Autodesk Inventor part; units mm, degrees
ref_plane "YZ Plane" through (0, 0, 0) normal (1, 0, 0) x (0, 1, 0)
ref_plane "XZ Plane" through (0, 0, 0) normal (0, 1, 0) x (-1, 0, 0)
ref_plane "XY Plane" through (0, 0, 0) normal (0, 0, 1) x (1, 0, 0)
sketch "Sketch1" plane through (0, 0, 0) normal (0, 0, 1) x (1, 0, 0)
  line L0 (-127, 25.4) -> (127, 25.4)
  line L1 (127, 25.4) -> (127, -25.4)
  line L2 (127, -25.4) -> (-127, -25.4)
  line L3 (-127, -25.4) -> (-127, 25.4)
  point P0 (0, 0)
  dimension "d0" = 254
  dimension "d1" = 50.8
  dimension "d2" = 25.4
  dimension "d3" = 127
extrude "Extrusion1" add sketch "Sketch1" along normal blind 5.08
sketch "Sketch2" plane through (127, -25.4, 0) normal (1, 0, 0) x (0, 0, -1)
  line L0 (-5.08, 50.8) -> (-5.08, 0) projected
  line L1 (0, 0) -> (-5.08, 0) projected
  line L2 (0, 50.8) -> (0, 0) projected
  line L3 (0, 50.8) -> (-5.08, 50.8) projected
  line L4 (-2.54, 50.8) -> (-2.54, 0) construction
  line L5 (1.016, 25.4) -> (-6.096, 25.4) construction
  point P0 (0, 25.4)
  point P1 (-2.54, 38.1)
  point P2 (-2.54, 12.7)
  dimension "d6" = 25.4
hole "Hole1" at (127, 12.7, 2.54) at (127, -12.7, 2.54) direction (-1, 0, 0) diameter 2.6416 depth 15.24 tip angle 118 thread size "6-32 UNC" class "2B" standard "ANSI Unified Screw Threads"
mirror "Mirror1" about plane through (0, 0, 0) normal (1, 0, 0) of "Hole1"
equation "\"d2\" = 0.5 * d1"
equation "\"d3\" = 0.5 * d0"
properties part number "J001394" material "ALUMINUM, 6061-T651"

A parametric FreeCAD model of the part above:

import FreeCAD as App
import Part
import Sketcher

V = App.Vector
Q = App.Units.Quantity

doc = App.newDocument("Part")
body = doc.addObject("PartDesign::Body", "Body")

sketch1 = doc.addObject("Sketcher::SketchObject", "Sketch")
body.addObject(sketch1)
sketch1.AttachmentSupport = (doc.XY_Plane, [""])
sketch1.MapMode = "FlatFace"
sketch1.addGeometry([
    Part.LineSegment(V(127, 25, 0), V(-127, 25, 0)),
    Part.LineSegment(V(-127, 25, 0), V(-127, -25, 0)),
    Part.LineSegment(V(-127, -25, 0), V(127, -25, 0)),
    Part.LineSegment(V(127, -25, 0), V(127, 25, 0)),
], False)
sketch1.addConstraint([
    Sketcher.Constraint("Coincident", 0, 2, 1, 1),
    Sketcher.Constraint("Coincident", 1, 2, 2, 1),
    Sketcher.Constraint("Coincident", 2, 2, 3, 1),
    Sketcher.Constraint("Coincident", 3, 2, 0, 1),
    Sketcher.Constraint("Horizontal", 0),
    Sketcher.Constraint("Vertical", 1),
    Sketcher.Constraint("Horizontal", 2),
    Sketcher.Constraint("Vertical", 3),
    Sketcher.Constraint("Symmetric", 0, 2, 2, 2, -1, 1),
    Sketcher.Constraint("DistanceX", 0, 2, 0, 1, Q("10 in")),
    Sketcher.Constraint("DistanceY", 1, 2, 1, 1, Q("2 in")),
])
pad1 = doc.addObject("PartDesign::Pad", "Pad")
body.addObject(pad1)
pad1.Profile = sketch1
pad1.Length = Q("0.2 in")

sketch2 = doc.addObject("Sketcher::SketchObject", "Sketch001")
body.addObject(sketch2)
sketch2.AttachmentSupport = (doc.YZ_Plane, [""])
sketch2.MapMode = "FlatFace"
sketch2.AttachmentOffset = App.Placement(V(0, 0, 5 * 25.4), App.Rotation())
sketch2.addGeometry([
    Part.Circle(V(12.7, 2.5, 0), V(0, 0, 1), 1.3),
    Part.Circle(V(-12.7, 2.5, 0), V(0, 0, 1), 1.3),
], False)
sketch2.addConstraint([
    Sketcher.Constraint("Equal", 0, 1),
    Sketcher.Constraint("Symmetric", 0, 3, 1, 3, -2),
    Sketcher.Constraint("Diameter", 0, Q("0.104 in")),
    Sketcher.Constraint("DistanceX", 1, 3, 0, 3, Q("1 in")),
    Sketcher.Constraint("DistanceY", -1, 1, 0, 3, Q("0.1 in")),
])
doc.recompute()
hole = doc.addObject("PartDesign::Hole", "Hole")
body.addObject(hole)
hole.Profile = sketch2
hole.ThreadType = "None"
hole.Diameter = Q("0.104 in")
hole.DepthType = "Dimension"
hole.Depth = Q("0.6 in")
hole.DrillPoint = "Angled"
hole.DrillPointAngle = 118
doc.recompute()

mirrored = doc.addObject("PartDesign::Mirrored", "Mirrored")
body.addObject(mirrored)
mirrored.Originals = [hole]
mirrored.MirrorPlane = (doc.YZ_Plane, [""])
body.Tip = mirrored

doc.recompute()
